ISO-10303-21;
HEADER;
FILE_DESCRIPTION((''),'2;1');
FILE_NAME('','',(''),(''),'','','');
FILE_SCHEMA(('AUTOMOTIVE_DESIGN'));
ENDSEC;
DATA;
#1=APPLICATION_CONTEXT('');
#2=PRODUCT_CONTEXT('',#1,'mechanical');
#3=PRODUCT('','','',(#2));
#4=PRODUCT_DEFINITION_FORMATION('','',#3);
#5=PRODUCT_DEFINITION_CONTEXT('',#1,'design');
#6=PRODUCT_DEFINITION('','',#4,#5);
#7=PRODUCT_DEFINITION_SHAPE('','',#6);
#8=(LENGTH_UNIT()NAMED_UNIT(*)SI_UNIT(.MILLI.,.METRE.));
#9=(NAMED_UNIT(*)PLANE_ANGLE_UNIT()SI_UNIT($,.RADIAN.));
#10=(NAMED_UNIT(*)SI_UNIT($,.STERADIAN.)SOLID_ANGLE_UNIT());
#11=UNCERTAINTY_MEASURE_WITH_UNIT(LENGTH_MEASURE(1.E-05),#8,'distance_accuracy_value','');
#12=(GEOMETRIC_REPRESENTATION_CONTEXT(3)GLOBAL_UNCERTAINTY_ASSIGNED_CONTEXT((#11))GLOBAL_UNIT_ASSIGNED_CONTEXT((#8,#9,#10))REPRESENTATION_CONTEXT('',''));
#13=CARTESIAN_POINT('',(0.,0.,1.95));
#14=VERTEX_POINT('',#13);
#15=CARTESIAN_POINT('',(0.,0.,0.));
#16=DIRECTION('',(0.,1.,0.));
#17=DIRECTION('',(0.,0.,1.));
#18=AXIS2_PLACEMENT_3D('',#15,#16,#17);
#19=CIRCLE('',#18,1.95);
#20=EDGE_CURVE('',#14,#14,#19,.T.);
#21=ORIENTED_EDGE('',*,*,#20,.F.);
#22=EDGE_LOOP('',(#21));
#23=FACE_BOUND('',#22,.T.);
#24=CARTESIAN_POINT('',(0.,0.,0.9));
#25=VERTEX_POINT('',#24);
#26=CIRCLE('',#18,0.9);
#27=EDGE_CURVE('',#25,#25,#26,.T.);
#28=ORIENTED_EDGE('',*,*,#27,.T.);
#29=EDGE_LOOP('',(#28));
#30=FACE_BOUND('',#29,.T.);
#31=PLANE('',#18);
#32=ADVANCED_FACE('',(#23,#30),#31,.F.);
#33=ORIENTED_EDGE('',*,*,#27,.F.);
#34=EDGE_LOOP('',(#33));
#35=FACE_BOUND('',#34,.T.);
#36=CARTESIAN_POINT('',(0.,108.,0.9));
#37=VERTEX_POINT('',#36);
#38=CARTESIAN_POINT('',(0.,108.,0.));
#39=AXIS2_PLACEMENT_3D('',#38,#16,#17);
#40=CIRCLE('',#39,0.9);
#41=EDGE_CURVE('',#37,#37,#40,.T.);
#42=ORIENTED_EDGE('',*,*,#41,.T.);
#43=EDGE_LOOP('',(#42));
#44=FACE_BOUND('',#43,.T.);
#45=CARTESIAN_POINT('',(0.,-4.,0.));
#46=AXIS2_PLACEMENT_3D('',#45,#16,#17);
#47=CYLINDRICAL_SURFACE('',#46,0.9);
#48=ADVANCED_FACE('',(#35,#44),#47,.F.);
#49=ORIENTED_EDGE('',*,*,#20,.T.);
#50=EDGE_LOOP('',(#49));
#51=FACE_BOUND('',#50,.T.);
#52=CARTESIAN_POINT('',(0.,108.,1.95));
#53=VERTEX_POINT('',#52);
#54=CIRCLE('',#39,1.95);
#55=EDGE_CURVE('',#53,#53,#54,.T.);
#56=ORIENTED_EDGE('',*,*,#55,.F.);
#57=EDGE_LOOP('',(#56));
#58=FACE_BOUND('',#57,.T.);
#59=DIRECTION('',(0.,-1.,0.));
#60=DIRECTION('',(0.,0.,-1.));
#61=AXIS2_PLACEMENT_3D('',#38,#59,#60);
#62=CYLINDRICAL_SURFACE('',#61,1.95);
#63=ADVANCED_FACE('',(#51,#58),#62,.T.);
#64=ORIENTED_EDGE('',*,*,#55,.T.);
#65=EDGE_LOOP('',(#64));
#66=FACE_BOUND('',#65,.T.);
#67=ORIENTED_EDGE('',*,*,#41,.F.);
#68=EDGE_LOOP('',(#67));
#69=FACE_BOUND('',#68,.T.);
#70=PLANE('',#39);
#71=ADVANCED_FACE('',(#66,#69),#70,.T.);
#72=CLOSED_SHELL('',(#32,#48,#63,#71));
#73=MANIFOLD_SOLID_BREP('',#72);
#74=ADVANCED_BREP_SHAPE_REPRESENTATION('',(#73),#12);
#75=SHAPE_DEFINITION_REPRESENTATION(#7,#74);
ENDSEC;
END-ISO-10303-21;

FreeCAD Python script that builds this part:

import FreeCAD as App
import Part
import Sketcher

V = App.Vector

doc = App.newDocument("Part")
body = doc.addObject("PartDesign::Body", "Body")

sketch1 = body.newObject("Sketcher::SketchObject", "Sketch")
sketch1.AttachmentSupport = (doc.getObject("XZ_Plane"), [""])
sketch1.MapMode = "FlatFace"
sketch1.addGeometry(Part.Circle(V(0, 0, 0), V(0, 0, 1), 1.95), False)
sketch1.addConstraint([
    Sketcher.Constraint("Coincident", 0, 3, -1, 1),
    Sketcher.Constraint("Diameter", 0, 3.9),
])
pad1 = body.newObject("PartDesign::Pad", "Pad")
pad1.Profile = sketch1
pad1.Length = 108
pad1.Reversed = True

sketch2 = body.newObject("Sketcher::SketchObject", "Sketch001")
sketch2.AttachmentSupport = (doc.getObject("XZ_Plane"), [""])
sketch2.MapMode = "FlatFace"
sketch2.AttachmentOffset = App.Placement(V(0, 0, -108), App.Rotation())
sketch2.addGeometry(Part.Circle(V(0, 0, 0), V(0, 0, 1), 0.9), False)
sketch2.addConstraint([
    Sketcher.Constraint("Coincident", 0, 3, -1, 1),
    Sketcher.Constraint("Diameter", 0, 1.8),
])
pocket1 = body.newObject("PartDesign::Pocket", "Pocket")
pocket1.Profile = sketch2
pocket1.Length = 112
pocket1.Reversed = True

doc.recompute()
